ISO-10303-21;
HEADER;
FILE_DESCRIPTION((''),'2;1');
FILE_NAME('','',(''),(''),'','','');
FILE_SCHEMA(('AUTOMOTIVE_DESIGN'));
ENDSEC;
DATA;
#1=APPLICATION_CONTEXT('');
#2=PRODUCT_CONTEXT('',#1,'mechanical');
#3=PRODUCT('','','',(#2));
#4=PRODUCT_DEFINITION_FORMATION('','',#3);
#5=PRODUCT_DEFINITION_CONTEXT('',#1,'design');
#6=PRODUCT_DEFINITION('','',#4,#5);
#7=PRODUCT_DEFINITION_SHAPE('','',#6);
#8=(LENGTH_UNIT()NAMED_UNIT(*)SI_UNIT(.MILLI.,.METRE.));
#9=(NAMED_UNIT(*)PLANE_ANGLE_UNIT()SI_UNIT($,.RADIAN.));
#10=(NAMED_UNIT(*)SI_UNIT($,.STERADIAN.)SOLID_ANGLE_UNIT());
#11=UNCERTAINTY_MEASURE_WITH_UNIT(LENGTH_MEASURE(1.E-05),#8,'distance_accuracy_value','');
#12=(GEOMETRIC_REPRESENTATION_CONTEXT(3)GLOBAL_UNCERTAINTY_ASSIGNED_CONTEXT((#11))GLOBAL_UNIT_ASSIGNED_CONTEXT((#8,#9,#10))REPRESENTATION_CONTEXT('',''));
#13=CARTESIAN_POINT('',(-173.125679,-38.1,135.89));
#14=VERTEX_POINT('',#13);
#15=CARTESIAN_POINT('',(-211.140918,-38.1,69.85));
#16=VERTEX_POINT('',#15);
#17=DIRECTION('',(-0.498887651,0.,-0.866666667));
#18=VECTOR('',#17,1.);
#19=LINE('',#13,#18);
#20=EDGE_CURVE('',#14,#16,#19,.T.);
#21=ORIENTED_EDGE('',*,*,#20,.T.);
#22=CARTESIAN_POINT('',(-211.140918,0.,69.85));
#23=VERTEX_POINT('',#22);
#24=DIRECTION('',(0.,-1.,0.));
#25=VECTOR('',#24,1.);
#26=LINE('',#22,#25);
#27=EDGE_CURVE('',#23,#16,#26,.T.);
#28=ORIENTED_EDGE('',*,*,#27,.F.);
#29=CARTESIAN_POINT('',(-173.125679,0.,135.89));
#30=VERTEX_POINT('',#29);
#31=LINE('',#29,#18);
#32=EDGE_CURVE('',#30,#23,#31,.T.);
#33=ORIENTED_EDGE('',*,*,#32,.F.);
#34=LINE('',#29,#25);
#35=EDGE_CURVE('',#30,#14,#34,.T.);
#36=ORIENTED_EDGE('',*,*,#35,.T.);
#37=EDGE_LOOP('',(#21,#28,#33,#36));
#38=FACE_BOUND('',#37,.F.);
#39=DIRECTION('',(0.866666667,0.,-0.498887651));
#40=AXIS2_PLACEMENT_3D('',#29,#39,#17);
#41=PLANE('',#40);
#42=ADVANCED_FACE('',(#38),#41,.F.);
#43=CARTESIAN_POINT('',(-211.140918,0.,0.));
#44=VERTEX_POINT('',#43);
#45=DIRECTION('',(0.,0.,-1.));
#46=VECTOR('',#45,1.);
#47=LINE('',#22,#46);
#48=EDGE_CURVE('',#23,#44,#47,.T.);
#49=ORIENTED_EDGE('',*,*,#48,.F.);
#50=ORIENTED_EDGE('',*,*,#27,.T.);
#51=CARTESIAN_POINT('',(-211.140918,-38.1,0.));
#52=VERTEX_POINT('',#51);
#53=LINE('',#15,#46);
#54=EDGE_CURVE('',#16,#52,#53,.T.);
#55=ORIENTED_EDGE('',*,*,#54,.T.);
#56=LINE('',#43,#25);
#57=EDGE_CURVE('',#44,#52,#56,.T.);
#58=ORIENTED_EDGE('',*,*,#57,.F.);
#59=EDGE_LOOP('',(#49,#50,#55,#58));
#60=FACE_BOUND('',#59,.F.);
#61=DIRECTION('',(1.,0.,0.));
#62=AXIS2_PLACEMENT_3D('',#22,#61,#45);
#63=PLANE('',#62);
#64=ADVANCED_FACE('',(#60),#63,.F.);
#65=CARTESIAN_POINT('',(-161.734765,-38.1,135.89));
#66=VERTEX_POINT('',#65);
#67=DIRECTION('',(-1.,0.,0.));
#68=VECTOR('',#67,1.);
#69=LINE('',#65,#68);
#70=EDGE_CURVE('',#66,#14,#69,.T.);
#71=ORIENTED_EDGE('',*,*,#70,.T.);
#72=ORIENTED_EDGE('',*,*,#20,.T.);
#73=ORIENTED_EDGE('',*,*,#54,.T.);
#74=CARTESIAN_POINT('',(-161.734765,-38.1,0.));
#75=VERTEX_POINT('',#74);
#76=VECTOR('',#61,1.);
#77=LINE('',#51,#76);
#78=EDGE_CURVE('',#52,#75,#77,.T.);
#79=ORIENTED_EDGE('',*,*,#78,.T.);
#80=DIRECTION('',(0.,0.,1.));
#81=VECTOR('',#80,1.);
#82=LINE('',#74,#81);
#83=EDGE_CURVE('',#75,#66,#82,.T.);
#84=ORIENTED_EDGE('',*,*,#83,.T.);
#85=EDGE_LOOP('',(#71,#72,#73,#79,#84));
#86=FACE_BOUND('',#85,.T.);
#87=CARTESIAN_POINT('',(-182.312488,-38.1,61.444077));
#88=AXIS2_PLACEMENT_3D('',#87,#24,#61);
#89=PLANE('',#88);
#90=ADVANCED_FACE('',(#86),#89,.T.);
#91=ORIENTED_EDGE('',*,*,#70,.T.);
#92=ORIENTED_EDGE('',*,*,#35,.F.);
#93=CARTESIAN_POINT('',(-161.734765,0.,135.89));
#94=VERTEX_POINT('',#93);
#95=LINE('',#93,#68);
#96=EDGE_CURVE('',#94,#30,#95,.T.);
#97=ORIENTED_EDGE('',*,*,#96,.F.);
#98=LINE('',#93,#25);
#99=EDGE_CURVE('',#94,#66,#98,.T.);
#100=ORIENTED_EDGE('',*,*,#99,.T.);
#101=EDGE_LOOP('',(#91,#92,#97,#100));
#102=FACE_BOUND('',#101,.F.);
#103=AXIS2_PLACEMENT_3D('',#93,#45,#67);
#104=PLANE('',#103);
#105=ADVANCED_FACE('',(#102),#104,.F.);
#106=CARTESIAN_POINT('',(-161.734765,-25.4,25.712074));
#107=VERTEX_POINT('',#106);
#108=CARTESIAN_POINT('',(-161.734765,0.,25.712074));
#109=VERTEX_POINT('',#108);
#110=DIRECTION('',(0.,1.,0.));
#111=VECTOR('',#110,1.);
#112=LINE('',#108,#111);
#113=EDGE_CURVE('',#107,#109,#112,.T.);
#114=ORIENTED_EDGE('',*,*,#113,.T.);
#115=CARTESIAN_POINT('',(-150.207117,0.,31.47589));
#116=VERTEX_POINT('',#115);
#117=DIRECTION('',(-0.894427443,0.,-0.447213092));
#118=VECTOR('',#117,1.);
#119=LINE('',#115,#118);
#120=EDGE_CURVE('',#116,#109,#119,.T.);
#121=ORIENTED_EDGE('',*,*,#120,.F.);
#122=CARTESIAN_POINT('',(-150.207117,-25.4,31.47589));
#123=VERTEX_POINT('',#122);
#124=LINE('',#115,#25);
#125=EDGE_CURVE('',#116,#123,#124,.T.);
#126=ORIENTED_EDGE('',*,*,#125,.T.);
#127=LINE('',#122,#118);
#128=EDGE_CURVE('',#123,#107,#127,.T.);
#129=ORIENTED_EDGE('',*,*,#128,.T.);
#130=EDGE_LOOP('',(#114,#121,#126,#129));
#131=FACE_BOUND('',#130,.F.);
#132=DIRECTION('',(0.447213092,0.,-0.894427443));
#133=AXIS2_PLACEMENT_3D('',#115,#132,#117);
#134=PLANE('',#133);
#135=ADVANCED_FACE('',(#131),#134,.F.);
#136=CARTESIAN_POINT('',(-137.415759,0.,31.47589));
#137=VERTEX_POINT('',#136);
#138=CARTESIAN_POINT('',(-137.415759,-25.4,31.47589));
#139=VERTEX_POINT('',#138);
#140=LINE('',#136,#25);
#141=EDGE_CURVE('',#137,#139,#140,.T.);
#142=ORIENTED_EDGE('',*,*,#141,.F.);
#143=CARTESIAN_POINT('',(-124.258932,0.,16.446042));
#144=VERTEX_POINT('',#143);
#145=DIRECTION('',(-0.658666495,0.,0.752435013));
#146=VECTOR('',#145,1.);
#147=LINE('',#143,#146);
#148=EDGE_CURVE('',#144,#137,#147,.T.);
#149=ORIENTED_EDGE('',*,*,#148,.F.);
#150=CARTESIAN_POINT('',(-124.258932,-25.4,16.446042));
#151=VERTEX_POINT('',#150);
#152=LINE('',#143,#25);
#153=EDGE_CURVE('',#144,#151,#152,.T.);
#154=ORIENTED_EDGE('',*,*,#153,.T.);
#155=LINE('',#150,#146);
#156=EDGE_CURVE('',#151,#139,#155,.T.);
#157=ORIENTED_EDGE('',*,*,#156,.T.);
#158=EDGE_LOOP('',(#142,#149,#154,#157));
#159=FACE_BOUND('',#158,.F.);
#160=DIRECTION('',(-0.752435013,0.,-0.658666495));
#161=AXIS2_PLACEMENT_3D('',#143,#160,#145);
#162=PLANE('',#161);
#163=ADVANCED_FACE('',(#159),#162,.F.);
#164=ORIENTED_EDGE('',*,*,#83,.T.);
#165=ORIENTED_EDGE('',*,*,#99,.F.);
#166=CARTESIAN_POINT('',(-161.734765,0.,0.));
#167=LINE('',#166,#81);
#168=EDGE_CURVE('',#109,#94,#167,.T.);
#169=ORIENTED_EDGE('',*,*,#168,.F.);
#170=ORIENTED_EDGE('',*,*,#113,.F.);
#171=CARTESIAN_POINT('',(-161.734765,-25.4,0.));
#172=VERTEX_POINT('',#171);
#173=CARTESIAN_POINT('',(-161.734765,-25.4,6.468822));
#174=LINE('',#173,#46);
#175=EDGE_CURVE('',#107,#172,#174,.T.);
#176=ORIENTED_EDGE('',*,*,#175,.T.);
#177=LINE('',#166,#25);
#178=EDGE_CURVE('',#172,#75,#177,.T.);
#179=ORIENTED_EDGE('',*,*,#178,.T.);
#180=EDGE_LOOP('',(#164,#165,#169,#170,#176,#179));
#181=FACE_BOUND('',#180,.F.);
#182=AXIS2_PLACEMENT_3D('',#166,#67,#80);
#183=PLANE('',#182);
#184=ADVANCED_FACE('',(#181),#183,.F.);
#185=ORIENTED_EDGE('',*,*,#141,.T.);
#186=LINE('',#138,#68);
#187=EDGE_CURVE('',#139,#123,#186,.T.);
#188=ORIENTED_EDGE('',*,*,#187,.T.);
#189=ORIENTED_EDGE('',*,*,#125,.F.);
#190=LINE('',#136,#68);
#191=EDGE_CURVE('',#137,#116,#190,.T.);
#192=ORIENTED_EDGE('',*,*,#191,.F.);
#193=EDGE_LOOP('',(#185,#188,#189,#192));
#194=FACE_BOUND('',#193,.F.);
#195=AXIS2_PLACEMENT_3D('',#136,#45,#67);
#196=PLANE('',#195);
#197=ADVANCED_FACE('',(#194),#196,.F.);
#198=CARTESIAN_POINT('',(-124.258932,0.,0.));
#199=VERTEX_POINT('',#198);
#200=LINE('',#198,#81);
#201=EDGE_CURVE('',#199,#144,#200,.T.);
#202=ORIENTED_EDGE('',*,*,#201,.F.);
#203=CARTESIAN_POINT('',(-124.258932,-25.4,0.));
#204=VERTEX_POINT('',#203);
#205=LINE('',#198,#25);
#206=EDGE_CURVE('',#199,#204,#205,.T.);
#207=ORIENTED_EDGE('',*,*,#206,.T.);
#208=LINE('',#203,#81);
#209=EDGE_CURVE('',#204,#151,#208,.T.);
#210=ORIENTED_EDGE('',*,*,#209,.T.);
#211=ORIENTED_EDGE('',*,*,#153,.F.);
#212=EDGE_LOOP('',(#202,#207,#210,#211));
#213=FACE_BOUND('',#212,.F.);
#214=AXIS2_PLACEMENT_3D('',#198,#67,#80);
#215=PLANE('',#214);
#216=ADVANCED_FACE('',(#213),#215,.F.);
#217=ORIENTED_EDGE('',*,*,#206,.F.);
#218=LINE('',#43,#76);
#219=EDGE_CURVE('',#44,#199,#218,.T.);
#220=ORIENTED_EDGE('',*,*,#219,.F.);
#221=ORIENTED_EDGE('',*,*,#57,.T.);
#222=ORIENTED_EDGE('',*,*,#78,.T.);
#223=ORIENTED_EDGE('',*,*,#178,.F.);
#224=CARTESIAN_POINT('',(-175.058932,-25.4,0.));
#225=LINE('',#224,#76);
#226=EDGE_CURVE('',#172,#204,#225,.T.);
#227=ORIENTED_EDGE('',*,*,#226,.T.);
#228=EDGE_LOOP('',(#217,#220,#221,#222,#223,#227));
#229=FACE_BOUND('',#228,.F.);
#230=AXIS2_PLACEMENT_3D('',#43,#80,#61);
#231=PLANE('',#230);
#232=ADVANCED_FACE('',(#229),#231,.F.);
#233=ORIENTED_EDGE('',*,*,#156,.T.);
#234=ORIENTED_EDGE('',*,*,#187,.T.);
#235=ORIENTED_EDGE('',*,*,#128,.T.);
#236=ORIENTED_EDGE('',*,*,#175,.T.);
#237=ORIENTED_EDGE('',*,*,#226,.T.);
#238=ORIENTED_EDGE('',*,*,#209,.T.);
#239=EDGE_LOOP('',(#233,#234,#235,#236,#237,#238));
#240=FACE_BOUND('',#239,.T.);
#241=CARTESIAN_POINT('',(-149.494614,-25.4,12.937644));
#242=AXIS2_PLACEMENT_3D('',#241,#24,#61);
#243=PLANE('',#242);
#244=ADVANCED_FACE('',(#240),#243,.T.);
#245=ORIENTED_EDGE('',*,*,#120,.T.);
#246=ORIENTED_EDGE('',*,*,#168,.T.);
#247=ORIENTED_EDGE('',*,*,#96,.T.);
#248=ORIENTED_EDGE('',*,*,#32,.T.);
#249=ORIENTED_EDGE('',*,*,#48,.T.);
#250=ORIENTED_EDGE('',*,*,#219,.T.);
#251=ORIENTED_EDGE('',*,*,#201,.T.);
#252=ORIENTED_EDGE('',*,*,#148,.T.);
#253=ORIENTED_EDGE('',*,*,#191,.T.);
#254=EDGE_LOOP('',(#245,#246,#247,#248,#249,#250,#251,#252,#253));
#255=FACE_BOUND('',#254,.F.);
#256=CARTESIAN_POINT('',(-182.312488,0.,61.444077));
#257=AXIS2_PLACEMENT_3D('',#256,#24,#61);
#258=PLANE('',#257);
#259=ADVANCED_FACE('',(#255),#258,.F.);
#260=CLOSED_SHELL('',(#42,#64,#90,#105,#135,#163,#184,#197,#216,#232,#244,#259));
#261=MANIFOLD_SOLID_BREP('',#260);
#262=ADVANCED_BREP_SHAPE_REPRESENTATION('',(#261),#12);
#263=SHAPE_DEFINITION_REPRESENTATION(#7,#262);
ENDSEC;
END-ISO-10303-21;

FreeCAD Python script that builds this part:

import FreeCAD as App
import Part
import Sketcher
from FreeCAD import Vector
Q = App.Units.Quantity

doc = App.newDocument("Part")
params = doc.addObject("Spreadsheet::Sheet", "Params")
for row, (alias, value) in enumerate([
    ("sketch1_width", "2 in"),
    ("sketch1_height", "0.75 in"),
    ("pad1_length", "1 in"),
    ("sketch2_length", "3 in"),
    ("sketch2_height", "2.75 in"),
    ("sketch2_height2", "5.35 in"),
    ("pad2_length", "1.5 in"),
], start=1):
    params.set(f"A{row}", alias)
    params.set(f"B{row}", "=" + value)
    params.setAlias(f"B{row}", alias)

body = doc.addObject("PartDesign::Body", "Body")

# Sketch on XZ plane
sketch1 = doc.addObject("Sketcher::SketchObject", "Sketch")
body.addObject(sketch1)
sketch1.AttachmentSupport = (doc.XZ_Plane, [""])
sketch1.MapMode = "FlatFace"
sketch1.addGeometry(Part.LineSegment(Vector(-175.058932, 19.05, 0), Vector(-175.058932, 0, 0)), False)
sketch1.addGeometry(Part.LineSegment(Vector(-175.058932, 0, 0), Vector(-124.258932, 0, 0)), False)
sketch1.addGeometry(Part.LineSegment(Vector(-124.258932, 0, 0), Vector(-124.258932, 16.446042, 0)), False)
sketch1.addGeometry(Part.LineSegment(Vector(-124.258932, 16.446042, 0), Vector(-137.415759, 31.47589, 0)), False)
sketch1.addGeometry(Part.LineSegment(Vector(-137.415759, 31.47589, 0), Vector(-150.207117, 31.47589, 0)), False)
sketch1.addGeometry(Part.LineSegment(Vector(-150.207117, 31.47589, 0), Vector(-175.058932, 19.05, 0)), False)
sketch1.addConstraint(Sketcher.Constraint("Coincident", 0, 2, 1, 1))
sketch1.addConstraint(Sketcher.Constraint("Coincident", 1, 2, 2, 1))
sketch1.addConstraint(Sketcher.Constraint("Coincident", 2, 2, 3, 1))
sketch1.addConstraint(Sketcher.Constraint("Coincident", 3, 2, 4, 1))
sketch1.addConstraint(Sketcher.Constraint("Coincident", 4, 2, 5, 1))
sketch1.addConstraint(Sketcher.Constraint("Coincident", 5, 2, 0, 1))
sketch1.addConstraint(Sketcher.Constraint("Vertical", 0))
sketch1.addConstraint(Sketcher.Constraint("Horizontal", 1))
sketch1.addConstraint(Sketcher.Constraint("Vertical", 2))
sketch1.addConstraint(Sketcher.Constraint("Horizontal", 4))
sketch1.addConstraint(Sketcher.Constraint("PointOnObject", 0, 2, -1))
sketch1.addConstraint(Sketcher.Constraint("DistanceX", 1, 1, 1, 2, Q("2 in")))
sketch1.addConstraint(Sketcher.Constraint("DistanceY", 0, 2, 0, 1, Q("0.75 in")))
sketch1.addConstraint(Sketcher.Constraint("DistanceX", 4, 2, 4, 1, Q("12.791358 mm")))
sketch1.addConstraint(Sketcher.Constraint("DistanceY", 2, 1, 2, 2, Q("16.446042 mm")))
sketch1.addConstraint(Sketcher.Constraint("DistanceX", 0, 2, -1, 1, Q("175.058932 mm")))
sketch1.addConstraint(Sketcher.Constraint("DistanceX", 3, 2, -1, 1, Q("137.415759 mm")))
sketch1.addConstraint(Sketcher.Constraint("DistanceY", -1, 1, 3, 2, Q("31.47589 mm")))
sketch1.setExpression("Constraints[11]", "Params.sketch1_width")
sketch1.setExpression("Constraints[12]", "Params.sketch1_height")
pad1 = doc.addObject("PartDesign::Pad", "Pad")
body.addObject(pad1)
pad1.Profile = sketch1
pad1.setExpression("Length", "Params.pad1_length")

# Sketch on XZ plane
sketch2 = doc.addObject("Sketcher::SketchObject", "Sketch001")
body.addObject(sketch2)
sketch2.AttachmentSupport = (doc.XZ_Plane, [""])
sketch2.MapMode = "FlatFace"
sketch2.addGeometry(Part.LineSegment(Vector(-211.140918, 69.85, 0), Vector(-211.140918, 0, 0)), False)
sketch2.addGeometry(Part.LineSegment(Vector(-211.140918, 0, 0), Vector(-161.734765, 0, 0)), False)
sketch2.addGeometry(Part.LineSegment(Vector(-161.734765, 0, 0), Vector(-161.734765, 135.89, 0)), False)
sketch2.addGeometry(Part.LineSegment(Vector(-161.734765, 135.89, 0), Vector(-173.125679, 135.89, 0)), False)
sketch2.addGeometry(Part.LineSegment(Vector(-173.125679, 135.89, 0), Vector(-211.140918, 69.85, 0)), False)
sketch2.addConstraint(Sketcher.Constraint("Coincident", 0, 2, 1, 1))
sketch2.addConstraint(Sketcher.Constraint("Coincident", 1, 2, 2, 1))
sketch2.addConstraint(Sketcher.Constraint("Coincident", 2, 2, 3, 1))
sketch2.addConstraint(Sketcher.Constraint("Coincident", 3, 2, 4, 1))
sketch2.addConstraint(Sketcher.Constraint("Coincident", 4, 2, 0, 1))
sketch2.addConstraint(Sketcher.Constraint("Vertical", 0))
sketch2.addConstraint(Sketcher.Constraint("Horizontal", 1))
sketch2.addConstraint(Sketcher.Constraint("Vertical", 2))
sketch2.addConstraint(Sketcher.Constraint("Horizontal", 3))
sketch2.addConstraint(Sketcher.Constraint("PointOnObject", 0, 2, -1))
sketch2.addConstraint(Sketcher.Constraint("Distance", 4, Q("3 in")))
sketch2.addConstraint(Sketcher.Constraint("DistanceY", 0, 2, 0, 1, Q("2.75 in")))
sketch2.addConstraint(Sketcher.Constraint("DistanceY", 2, 1, 2, 2, Q("5.35 in")))
sketch2.addConstraint(Sketcher.Constraint("DistanceX", 1, 1, 1, 2, Q("49.406153 mm")))
sketch2.addConstraint(Sketcher.Constraint("DistanceX", 0, 2, -1, 1, Q("211.140918 mm")))
sketch2.setExpression("Constraints[10]", "Params.sketch2_length")
sketch2.setExpression("Constraints[11]", "Params.sketch2_height")
sketch2.setExpression("Constraints[12]", "Params.sketch2_height2")
pad2 = doc.addObject("PartDesign::Pad", "Pad001")
body.addObject(pad2)
pad2.Profile = sketch2
pad2.setExpression("Length", "Params.pad2_length")

doc.recompute()
